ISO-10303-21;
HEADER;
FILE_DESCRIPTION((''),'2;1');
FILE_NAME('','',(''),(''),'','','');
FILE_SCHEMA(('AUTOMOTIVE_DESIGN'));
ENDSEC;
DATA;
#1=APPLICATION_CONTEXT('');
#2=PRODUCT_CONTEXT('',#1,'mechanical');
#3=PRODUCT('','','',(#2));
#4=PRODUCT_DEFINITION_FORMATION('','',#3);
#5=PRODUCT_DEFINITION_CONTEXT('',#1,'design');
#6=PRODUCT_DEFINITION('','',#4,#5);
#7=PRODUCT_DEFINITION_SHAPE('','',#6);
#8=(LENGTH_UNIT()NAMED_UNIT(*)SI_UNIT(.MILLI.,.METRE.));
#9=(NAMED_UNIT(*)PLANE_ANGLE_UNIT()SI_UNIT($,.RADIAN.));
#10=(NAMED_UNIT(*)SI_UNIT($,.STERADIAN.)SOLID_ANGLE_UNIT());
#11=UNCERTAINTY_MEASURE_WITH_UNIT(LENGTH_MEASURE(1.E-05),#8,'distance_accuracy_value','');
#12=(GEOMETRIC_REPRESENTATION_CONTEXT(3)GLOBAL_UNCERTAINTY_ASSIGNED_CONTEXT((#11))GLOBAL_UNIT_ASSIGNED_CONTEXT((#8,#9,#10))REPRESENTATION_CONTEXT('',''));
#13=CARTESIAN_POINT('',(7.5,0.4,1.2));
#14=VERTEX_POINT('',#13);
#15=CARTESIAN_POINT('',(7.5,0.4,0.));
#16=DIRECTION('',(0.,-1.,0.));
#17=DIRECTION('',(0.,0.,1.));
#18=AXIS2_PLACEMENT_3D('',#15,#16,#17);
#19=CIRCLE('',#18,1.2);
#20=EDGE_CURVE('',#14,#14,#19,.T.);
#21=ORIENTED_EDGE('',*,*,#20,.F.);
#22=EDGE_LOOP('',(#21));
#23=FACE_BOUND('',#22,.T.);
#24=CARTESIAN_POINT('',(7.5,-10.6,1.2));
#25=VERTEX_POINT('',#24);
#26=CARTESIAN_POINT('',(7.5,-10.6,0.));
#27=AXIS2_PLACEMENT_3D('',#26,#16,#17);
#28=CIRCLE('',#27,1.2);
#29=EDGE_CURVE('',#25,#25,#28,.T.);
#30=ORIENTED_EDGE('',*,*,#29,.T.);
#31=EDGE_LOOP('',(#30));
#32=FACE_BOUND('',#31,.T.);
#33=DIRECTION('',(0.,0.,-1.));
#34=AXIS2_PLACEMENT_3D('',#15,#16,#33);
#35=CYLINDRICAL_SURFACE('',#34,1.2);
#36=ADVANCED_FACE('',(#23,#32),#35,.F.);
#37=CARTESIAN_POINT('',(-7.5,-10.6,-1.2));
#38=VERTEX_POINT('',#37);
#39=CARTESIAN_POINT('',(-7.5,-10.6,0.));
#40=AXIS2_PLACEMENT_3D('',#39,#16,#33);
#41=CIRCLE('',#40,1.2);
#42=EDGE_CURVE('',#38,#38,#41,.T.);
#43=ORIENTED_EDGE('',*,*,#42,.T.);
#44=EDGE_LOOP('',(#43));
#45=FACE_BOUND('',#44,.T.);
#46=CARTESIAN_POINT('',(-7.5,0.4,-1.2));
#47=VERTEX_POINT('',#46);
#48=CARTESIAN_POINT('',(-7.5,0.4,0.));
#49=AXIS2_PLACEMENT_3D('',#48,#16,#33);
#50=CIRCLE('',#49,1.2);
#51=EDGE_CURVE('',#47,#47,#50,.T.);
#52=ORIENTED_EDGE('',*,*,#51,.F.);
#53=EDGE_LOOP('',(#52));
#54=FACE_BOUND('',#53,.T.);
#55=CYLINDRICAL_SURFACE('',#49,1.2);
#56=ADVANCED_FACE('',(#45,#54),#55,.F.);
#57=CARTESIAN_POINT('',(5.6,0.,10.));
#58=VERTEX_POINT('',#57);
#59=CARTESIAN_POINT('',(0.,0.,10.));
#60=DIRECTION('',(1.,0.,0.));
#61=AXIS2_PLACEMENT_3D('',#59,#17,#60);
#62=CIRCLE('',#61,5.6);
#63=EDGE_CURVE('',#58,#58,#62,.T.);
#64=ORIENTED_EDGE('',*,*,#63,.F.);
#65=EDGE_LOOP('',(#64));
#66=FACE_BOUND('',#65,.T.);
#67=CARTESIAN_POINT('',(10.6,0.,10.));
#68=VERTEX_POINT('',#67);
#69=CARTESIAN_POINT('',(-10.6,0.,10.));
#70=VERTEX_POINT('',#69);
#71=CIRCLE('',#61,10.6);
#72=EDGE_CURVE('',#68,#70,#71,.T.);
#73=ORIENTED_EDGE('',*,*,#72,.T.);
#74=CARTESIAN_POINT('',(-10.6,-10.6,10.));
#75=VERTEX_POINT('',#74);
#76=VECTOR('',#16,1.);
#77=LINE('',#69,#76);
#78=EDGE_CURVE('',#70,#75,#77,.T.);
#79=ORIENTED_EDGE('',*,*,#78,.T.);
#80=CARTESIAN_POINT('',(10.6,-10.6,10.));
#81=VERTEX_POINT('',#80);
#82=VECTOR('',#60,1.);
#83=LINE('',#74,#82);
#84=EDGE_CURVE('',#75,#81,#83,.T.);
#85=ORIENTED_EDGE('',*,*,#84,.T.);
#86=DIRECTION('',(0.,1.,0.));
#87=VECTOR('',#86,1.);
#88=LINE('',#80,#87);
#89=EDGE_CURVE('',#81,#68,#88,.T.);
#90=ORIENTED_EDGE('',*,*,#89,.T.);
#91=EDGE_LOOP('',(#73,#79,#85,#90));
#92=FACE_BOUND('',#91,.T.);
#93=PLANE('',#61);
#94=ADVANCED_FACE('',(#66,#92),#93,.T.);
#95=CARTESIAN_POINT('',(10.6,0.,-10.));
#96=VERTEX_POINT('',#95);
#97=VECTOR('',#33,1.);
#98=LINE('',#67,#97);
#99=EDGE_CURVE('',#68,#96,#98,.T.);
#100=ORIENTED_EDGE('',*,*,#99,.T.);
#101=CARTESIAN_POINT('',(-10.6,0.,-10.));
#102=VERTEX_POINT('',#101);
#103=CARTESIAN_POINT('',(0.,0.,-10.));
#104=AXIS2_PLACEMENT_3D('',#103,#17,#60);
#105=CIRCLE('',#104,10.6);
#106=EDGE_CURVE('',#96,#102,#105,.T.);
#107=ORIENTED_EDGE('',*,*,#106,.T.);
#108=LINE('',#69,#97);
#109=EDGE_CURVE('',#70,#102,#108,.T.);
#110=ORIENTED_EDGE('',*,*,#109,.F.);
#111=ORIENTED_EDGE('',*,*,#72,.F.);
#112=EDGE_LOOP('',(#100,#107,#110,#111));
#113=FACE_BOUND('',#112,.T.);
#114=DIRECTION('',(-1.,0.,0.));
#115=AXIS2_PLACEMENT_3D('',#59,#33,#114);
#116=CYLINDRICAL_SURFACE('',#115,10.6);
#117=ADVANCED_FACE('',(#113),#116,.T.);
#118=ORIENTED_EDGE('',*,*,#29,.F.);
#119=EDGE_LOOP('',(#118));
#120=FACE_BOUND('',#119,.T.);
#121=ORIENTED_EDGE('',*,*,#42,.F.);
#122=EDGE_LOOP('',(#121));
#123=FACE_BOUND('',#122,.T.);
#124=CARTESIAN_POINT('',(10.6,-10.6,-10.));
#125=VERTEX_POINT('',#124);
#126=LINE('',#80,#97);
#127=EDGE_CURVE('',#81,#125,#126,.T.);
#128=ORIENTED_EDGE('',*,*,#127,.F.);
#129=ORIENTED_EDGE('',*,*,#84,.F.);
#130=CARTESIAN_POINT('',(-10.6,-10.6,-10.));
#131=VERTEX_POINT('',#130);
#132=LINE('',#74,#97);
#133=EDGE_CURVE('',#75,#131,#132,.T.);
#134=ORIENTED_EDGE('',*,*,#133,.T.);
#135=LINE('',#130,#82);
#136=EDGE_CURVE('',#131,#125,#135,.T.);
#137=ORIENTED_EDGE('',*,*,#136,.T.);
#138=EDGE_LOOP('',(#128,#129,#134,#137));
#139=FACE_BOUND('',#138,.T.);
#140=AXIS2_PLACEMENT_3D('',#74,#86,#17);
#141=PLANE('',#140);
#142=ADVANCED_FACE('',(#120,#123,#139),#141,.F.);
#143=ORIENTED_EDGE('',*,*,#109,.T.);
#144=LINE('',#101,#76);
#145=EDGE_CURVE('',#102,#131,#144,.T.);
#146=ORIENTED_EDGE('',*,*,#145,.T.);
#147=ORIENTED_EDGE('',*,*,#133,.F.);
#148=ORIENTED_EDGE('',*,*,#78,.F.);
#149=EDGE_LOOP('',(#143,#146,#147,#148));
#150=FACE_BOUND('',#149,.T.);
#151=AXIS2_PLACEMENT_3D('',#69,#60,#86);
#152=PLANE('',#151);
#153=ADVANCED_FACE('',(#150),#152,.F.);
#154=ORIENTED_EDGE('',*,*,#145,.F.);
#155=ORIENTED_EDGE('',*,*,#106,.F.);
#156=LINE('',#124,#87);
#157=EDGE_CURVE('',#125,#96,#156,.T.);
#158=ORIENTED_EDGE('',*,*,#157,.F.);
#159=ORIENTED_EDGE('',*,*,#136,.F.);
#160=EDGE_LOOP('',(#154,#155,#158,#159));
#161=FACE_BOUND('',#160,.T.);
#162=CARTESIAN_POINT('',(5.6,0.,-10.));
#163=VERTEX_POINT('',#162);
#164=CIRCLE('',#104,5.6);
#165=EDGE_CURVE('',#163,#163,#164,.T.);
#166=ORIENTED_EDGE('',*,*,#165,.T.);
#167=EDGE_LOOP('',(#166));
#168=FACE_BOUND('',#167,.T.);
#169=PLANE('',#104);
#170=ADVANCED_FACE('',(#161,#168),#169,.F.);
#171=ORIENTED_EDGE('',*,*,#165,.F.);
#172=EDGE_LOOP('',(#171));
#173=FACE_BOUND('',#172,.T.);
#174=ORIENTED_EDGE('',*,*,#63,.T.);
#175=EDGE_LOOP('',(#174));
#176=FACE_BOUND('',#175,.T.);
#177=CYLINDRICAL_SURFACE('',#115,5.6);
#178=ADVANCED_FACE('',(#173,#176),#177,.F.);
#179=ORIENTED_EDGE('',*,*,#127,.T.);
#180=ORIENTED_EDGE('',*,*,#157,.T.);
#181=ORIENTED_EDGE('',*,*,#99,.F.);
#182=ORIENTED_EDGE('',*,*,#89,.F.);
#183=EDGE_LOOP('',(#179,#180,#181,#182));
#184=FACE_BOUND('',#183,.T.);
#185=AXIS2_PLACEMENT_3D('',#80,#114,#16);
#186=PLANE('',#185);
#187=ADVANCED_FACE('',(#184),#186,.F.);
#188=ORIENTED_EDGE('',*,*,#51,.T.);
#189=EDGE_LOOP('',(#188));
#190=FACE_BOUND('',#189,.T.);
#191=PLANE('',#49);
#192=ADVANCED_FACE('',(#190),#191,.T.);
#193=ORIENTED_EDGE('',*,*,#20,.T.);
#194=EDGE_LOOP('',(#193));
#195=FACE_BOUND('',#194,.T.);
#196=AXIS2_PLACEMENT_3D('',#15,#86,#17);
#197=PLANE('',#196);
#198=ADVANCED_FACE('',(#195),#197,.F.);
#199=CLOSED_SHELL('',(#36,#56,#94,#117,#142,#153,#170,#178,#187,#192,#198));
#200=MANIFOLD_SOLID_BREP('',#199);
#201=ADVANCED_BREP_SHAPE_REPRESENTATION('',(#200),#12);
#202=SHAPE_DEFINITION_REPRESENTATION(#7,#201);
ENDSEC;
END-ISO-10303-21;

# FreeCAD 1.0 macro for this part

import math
import FreeCAD as App
import Part
import Sketcher

V = App.Vector

doc = App.newDocument("Part")
body = doc.addObject("PartDesign::Body", "Body")

# Sketch on XY plane
sketch1 = body.newObject("Sketcher::SketchObject", "Sketch")
sketch1.AttachmentSupport = (doc.getObject("XY_Plane"), [""])
sketch1.MapMode = "FlatFace"
sketch1.addGeometry([
    Part.LineSegment(V(-11, 0, 0), V(-11, -11, 0)),  # 0
    Part.LineSegment(V(-11, -11, 0), V(11, -11, 0)),  # 1
    Part.LineSegment(V(11, -11, 0), V(11, 0, 0)),  # 2
    Part.ArcOfCircle(Part.Circle(V(0, 0, 0), V(0, 0, 1), 11), math.radians(0), math.radians(180)),  # 3
    Part.Circle(V(0, 0, 0), V(0, 0, 1), 6),  # 4
], False)
sketch1.addConstraint([
    Sketcher.Constraint("Coincident", 0, 2, 1, 1),
    Sketcher.Constraint("Coincident", 1, 2, 2, 1),
    Sketcher.Constraint("Tangent", 2, 2, 3, 1),
    Sketcher.Constraint("Tangent", 3, 2, 0, 1),
    Sketcher.Constraint("Vertical", 0),
    Sketcher.Constraint("Horizontal", 1),
    Sketcher.Constraint("Vertical", 2),
    Sketcher.Constraint("Coincident", 3, 3, -1, 1),
    Sketcher.Constraint("Coincident", 4, 3, -1, 1),
    Sketcher.Constraint("Diameter", 4, 11.2),
    Sketcher.Constraint("Radius", 3, 10.6),
    Sketcher.Constraint("DistanceY", 0, 2, 0, 1, 10.6),
])
pad1 = body.newObject("PartDesign::Pad", "Pad")
pad1.Profile = sketch1
pad1.Length = 20
pad1.Midplane = True

# Sketch on XZ plane
sketch2 = body.newObject("Sketcher::SketchObject", "Sketch001")
sketch2.AttachmentSupport = (doc.getObject("XZ_Plane"), [""])
sketch2.MapMode = "FlatFace"
sketch2.AttachmentOffset = App.Placement(V(0, 0, 10.6), App.Rotation())
sketch2.addGeometry([
    Part.Circle(V(-7.5, 0, 0), V(0, 0, 1), 1.2),
    Part.Circle(V(7.5, 0, 0), V(0, 0, 1), 1.2),
], False)
sketch2.addConstraint([
    Sketcher.Constraint("Equal", 0, 1),
    Sketcher.Constraint("Symmetric", 0, 3, 1, 3, -1, 1),
    Sketcher.Constraint("PointOnObject", 0, 3, -1),
    Sketcher.Constraint("Diameter", 0, 2.4),
    Sketcher.Constraint("DistanceX", 0, 3, 1, 3, 15.0),
])
pocket1 = body.newObject("PartDesign::Pocket", "Pocket")
pocket1.Profile = sketch2
pocket1.Length = 11

doc.recompute()
